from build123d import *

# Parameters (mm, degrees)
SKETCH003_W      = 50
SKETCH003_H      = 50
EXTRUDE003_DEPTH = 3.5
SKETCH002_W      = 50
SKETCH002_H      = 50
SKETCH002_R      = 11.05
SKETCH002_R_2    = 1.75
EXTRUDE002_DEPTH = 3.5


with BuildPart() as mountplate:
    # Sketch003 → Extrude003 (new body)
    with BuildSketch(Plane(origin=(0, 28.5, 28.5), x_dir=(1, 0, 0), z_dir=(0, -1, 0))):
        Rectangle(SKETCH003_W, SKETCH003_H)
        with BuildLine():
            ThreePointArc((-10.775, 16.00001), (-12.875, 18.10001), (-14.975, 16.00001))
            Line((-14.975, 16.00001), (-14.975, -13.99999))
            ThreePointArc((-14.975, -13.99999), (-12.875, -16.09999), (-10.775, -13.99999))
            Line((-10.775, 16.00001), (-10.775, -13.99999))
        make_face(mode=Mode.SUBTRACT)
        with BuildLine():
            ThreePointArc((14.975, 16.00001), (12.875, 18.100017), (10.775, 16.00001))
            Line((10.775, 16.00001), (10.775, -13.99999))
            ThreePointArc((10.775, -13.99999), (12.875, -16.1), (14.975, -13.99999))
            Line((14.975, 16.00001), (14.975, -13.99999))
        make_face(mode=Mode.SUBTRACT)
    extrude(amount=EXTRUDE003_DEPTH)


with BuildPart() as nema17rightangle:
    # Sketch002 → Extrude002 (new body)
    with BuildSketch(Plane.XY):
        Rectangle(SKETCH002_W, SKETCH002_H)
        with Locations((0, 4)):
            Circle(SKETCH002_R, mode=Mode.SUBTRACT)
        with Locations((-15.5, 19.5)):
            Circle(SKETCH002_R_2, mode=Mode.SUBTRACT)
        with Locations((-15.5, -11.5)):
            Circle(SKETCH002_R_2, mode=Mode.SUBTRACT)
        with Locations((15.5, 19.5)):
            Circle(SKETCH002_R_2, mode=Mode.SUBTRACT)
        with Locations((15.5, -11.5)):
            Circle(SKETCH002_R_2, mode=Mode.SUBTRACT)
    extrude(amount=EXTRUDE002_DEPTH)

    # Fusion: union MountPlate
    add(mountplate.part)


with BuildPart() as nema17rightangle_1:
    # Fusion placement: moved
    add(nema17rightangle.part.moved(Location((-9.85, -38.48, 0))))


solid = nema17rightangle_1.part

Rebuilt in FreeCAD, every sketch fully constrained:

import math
import FreeCAD as App
import Part
import Sketcher
from FreeCAD import Vector
Q = App.Units.Quantity


def add_polygon(sketch, points):
    """Adds a closed chain of lines whose ends are joined by coincident constraints."""
    first, n = sketch.GeometryCount, len(points)
    for a, b in zip(points, points[1:] + points[:1]):
        sketch.addGeometry(Part.LineSegment(App.Vector(*a, 0), App.Vector(*b, 0)), False)
    for i in range(n):
        sketch.addConstraint(Sketcher.Constraint("Coincident", first + i, 2, first + (i + 1) % n, 1))

doc = App.newDocument("Part")
body = doc.addObject("PartDesign::Body", "Body")

sketch1 = doc.addObject("Sketcher::SketchObject", "Sketch")
body.addObject(sketch1)
sketch1.AttachmentSupport = (doc.XZ_Plane, [""])
sketch1.MapMode = "FlatFace"
sketch1.AttachmentOffset = App.Placement(Vector(0, 0, -28.5), App.Rotation())
add_polygon(sketch1, [(-25, 53.5), (-25, 3.5), (25, 3.5), (25, 53.5)])
sketch1.addGeometry(Part.ArcOfCircle(Part.Circle(Vector(-12.9, 44.5, 0), Vector(0, 0, 1), 2.1), math.radians(0), math.radians(180)), False)
sketch1.addGeometry(Part.LineSegment(Vector(-10.8, 44.5, 0), Vector(-10.8, 14.5, 0)), False)
sketch1.addGeometry(Part.ArcOfCircle(Part.Circle(Vector(-12.9, 14.5, 0), Vector(0, 0, 1), 2.1), math.radians(180), math.radians(360)), False)
sketch1.addGeometry(Part.LineSegment(Vector(-15, 14.5, 0), Vector(-15, 44.5, 0)), False)
sketch1.addGeometry(Part.ArcOfCircle(Part.Circle(Vector(12.9, 44.5, 0), Vector(0, 0, 1), 2.1), math.radians(0), math.radians(180)), False)
sketch1.addGeometry(Part.LineSegment(Vector(15, 44.5, 0), Vector(15, 14.5, 0)), False)
sketch1.addGeometry(Part.ArcOfCircle(Part.Circle(Vector(12.9, 14.5, 0), Vector(0, 0, 1), 2.1), math.radians(180), math.radians(360)), False)
sketch1.addGeometry(Part.LineSegment(Vector(10.8, 14.5, 0), Vector(10.8, 44.5, 0)), False)
sketch1.addConstraint([
    Sketcher.Constraint("Tangent", 4, 1, 5, 1),
    Sketcher.Constraint("Tangent", 5, 2, 6, 2),
    Sketcher.Constraint("Tangent", 6, 1, 7, 1),
    Sketcher.Constraint("Tangent", 7, 2, 4, 2),
    Sketcher.Constraint("Coincident", 8, 1, 9, 1),
    Sketcher.Constraint("Coincident", 9, 2, 10, 2),
    Sketcher.Constraint("Coincident", 10, 1, 11, 1),
    Sketcher.Constraint("Coincident", 11, 2, 8, 2),
    Sketcher.Constraint("Vertical", 0),
    Sketcher.Constraint("Horizontal", 1),
    Sketcher.Constraint("Vertical", 2),
    Sketcher.Constraint("Horizontal", 3),
    Sketcher.Constraint("Vertical", 5),
    Sketcher.Constraint("Vertical", 7),
    Sketcher.Constraint("Vertical", 9),
    Sketcher.Constraint("Vertical", 11),
    Sketcher.Constraint("Equal", 6, 8),
    Sketcher.Constraint("Symmetric", 4, 3, 8, 3, -2),
    Sketcher.Constraint("Horizontal", 7, 2, 8, 1),
    Sketcher.Constraint("Horizontal", 6, 1, 9, 2),
    Sketcher.Constraint("Horizontal", 9, 2, 10, 1),
    Sketcher.Constraint("Horizontal", 8, 1, 11, 2),
    Sketcher.Constraint("Equal", 3, 0),
    Sketcher.Constraint("Radius", 4, Q("2.1 mm")),
    Sketcher.Constraint("DistanceX", 1, 1, 1, 2, Q("50 mm")),
    Sketcher.Constraint("DistanceY", 5, 2, 5, 1, Q("30 mm")),
    Sketcher.Constraint("DistanceX", 0, 2, -1, 1, Q("25 mm")),
    Sketcher.Constraint("DistanceY", 0, 2, 10, 3, Q("11 mm")),
    Sketcher.Constraint("DistanceY", -1, 1, 10, 3, Q("14.5 mm")),
    Sketcher.Constraint("DistanceX", 4, 3, 8, 3, Q("25.75 mm")),
    Sketcher.Constraint("DistanceY", -1, 1, 4, 3, Q("44.50001 mm")),
])
pad1 = doc.addObject("PartDesign::Pad", "Pad")
body.addObject(pad1)
pad1.Profile = sketch1
pad1.Length = 3.5
body2 = doc.addObject("PartDesign::Body", "Body001")
body2.AllowCompound = True

sketch2 = doc.addObject("Sketcher::SketchObject", "Sketch001")
body2.addObject(sketch2)
sketch2.AttachmentSupport = (doc.getObject("XY_Plane001"), [""])
sketch2.MapMode = "FlatFace"
add_polygon(sketch2, [(-25, 25), (-25, -25), (25, -25), (25, 25)])
sketch2.addGeometry(Part.Circle(Vector(-15.5, -11.5, 0), Vector(0, 0, 1), 1.8), False)
sketch2.addGeometry(Part.Circle(Vector(15.5, -11.5, 0), Vector(0, 0, 1), 1.8), False)
sketch2.addGeometry(Part.Circle(Vector(-15.5, 19.5, 0), Vector(0, 0, 1), 1.8), False)
sketch2.addGeometry(Part.Circle(Vector(0, 4, 0), Vector(0, 0, 1), 11.1), False)
sketch2.addGeometry(Part.Circle(Vector(15.5, 19.5, 0), Vector(0, 0, 1), 1.8), False)
sketch2.addConstraint([
    Sketcher.Constraint("Vertical", 0),
    Sketcher.Constraint("Horizontal", 1),
    Sketcher.Constraint("Vertical", 2),
    Sketcher.Constraint("Horizontal", 3),
    Sketcher.Constraint("Equal", 4, 5),
    Sketcher.Constraint("Equal", 5, 6),
    Sketcher.Constraint("Equal", 6, 8),
    Sketcher.Constraint("Symmetric", 0, 2, 2, 2, -1, 1),
    Sketcher.Constraint("Symmetric", 4, 3, 5, 3, -2),
    Sketcher.Constraint("Symmetric", 6, 3, 8, 3, -2),
    Sketcher.Constraint("PointOnObject", 7, 3, -2),
    Sketcher.Constraint("Vertical", 4, 3, 6, 3),
    Sketcher.Constraint("Equal", 3, 0),
    Sketcher.Constraint("Diameter", 4, Q("3.5 mm")),
    Sketcher.Constraint("Diameter", 7, Q("22.1 mm")),
    Sketcher.Constraint("DistanceX", 1, 1, 1, 2, Q("50 mm")),
    Sketcher.Constraint("DistanceY", -1, 1, 7, 3, Q("4 mm")),
    Sketcher.Constraint("DistanceX", 4, 3, 5, 3, Q("31 mm")),
    Sketcher.Constraint("DistanceY", 4, 3, 6, 3, Q("31 mm")),
    Sketcher.Constraint("DistanceY", 4, 3, -1, 1, Q("11.5 mm")),
])
pad2 = doc.addObject("PartDesign::Pad", "Pad001")
body2.addObject(pad2)
pad2.Profile = sketch2
pad2.Length = 3.5
doc.recompute()

boolean = doc.addObject("PartDesign::Boolean", "Boolean")
body2.addObject(boolean)
boolean.Type = "Fuse"
boolean.addObjects([body])
body3 = doc.addObject("PartDesign::Body", "Body002")
body3.AllowCompound = True
doc.recompute()

body2.Placement = App.Placement(Vector(-9.85, -38.48, 0), App.Rotation(Vector(0, 0, 1), 0))
boolean2 = doc.addObject("PartDesign::Boolean", "Boolean001")
body3.addObject(boolean2)
boolean2.Type = "Fuse"
boolean2.addObjects([body2])

doc.recompute()
